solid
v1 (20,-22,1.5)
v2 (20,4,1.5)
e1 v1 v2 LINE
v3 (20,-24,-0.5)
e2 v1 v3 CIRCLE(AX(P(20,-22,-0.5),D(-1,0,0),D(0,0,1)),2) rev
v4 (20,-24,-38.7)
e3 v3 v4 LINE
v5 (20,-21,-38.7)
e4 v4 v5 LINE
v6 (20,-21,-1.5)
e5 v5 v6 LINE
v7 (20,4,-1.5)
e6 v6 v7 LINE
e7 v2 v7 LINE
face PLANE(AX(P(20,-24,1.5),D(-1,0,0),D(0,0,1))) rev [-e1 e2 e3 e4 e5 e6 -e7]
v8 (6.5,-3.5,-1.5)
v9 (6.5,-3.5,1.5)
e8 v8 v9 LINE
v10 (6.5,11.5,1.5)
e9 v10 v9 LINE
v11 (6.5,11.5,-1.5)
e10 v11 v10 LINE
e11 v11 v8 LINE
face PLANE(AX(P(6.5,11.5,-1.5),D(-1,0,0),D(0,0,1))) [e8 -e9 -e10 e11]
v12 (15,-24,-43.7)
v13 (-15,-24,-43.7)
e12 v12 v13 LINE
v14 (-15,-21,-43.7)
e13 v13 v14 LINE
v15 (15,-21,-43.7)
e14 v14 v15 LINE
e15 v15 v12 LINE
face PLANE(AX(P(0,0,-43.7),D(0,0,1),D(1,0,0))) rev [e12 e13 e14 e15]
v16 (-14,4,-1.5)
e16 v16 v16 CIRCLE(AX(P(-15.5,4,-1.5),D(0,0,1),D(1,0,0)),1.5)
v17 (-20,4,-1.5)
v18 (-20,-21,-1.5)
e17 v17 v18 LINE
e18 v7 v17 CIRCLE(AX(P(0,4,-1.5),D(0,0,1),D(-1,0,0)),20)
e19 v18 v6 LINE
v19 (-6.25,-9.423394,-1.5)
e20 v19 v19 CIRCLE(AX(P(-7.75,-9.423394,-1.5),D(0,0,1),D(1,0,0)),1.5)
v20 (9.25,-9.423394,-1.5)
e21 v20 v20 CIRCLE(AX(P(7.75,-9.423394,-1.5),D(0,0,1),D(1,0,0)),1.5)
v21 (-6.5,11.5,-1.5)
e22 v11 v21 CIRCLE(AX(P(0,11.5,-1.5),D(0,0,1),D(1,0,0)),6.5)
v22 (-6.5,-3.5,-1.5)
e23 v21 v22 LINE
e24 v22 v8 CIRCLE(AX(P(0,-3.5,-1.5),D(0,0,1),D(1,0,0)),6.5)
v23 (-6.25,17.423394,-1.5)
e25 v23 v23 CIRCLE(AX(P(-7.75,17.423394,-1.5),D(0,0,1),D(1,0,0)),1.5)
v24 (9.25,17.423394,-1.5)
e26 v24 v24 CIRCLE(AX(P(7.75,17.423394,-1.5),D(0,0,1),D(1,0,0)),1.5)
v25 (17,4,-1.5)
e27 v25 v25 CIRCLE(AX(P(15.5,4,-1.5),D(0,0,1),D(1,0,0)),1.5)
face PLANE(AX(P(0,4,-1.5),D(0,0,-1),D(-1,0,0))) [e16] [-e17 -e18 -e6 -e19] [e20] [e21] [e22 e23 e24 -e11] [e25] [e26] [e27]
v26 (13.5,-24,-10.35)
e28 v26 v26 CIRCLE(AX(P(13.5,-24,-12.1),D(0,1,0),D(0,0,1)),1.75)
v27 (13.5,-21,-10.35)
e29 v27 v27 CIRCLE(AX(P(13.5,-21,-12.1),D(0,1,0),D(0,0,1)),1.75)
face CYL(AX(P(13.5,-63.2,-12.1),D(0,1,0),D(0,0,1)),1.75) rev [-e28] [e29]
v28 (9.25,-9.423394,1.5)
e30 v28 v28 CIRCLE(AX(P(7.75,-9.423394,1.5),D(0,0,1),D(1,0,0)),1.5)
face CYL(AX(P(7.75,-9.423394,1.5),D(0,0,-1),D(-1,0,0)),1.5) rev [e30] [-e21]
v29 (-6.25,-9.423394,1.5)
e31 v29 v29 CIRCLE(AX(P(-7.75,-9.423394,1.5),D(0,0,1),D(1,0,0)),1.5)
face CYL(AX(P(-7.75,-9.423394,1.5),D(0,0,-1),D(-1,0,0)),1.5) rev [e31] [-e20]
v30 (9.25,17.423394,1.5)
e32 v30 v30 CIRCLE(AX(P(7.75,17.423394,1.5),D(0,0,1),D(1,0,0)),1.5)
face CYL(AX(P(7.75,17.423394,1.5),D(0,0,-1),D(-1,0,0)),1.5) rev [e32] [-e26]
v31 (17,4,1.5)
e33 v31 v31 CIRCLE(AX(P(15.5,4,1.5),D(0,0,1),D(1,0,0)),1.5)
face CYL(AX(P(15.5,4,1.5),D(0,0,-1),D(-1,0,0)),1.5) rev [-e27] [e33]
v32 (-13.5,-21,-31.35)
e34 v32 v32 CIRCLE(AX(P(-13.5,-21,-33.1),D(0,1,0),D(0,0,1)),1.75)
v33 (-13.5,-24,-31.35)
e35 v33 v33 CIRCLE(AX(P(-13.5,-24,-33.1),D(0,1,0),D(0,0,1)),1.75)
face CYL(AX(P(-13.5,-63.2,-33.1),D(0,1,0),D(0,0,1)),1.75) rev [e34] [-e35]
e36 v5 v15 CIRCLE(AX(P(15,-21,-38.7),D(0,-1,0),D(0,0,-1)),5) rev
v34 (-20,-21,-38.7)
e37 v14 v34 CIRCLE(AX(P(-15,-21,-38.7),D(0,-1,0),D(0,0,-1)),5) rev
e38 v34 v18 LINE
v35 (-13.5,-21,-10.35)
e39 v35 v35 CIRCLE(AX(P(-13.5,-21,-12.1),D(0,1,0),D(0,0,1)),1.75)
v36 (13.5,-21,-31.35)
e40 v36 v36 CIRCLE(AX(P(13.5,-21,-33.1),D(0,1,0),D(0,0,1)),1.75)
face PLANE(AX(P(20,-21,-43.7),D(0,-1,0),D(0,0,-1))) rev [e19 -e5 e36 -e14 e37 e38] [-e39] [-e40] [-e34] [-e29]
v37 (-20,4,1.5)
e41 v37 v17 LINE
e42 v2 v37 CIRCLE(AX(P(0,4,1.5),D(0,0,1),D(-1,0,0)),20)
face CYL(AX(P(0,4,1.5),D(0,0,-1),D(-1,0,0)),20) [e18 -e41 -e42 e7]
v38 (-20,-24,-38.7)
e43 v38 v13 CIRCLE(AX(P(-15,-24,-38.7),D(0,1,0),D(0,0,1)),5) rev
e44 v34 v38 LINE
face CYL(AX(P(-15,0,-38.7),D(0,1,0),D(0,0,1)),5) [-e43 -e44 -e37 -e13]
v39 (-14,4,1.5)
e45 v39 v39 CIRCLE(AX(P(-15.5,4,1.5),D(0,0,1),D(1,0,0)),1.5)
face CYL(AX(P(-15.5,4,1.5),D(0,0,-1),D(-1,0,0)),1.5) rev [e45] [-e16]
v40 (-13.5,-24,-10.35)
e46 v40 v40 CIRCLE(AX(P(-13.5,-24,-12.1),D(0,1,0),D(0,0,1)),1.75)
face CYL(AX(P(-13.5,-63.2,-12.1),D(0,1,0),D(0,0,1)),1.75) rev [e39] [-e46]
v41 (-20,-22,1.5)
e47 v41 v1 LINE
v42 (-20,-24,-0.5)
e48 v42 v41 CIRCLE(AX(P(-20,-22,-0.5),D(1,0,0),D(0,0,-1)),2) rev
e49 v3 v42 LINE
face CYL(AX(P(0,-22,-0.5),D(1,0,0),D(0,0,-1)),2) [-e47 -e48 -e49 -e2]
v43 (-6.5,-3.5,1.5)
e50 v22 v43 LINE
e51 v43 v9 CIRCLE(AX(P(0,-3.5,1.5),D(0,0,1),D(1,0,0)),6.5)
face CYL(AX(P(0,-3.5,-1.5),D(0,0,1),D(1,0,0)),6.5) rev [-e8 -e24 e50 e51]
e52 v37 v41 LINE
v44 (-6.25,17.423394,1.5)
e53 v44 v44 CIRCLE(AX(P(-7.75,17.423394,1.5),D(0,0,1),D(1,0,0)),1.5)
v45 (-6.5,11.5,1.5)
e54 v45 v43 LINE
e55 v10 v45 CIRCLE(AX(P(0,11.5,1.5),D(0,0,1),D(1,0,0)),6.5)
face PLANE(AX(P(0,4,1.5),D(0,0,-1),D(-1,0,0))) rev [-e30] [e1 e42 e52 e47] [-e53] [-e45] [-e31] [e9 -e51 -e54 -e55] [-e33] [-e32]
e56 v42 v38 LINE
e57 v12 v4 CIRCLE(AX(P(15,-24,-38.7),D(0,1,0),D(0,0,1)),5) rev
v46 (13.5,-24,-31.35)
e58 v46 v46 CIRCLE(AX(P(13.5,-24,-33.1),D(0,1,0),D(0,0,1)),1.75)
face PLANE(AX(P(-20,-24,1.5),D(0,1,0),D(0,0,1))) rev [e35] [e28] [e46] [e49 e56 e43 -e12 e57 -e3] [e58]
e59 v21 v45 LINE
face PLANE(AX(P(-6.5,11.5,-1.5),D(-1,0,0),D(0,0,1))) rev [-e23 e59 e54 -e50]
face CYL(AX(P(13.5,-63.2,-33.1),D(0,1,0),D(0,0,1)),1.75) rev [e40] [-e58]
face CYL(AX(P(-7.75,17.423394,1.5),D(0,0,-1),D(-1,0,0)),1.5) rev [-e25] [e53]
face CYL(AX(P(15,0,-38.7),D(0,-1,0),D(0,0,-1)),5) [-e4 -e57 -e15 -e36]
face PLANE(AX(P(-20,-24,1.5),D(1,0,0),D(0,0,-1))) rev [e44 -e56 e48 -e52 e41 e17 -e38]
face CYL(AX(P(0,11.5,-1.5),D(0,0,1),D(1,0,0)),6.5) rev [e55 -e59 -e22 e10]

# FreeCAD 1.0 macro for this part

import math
import FreeCAD as App
import Part
import Sketcher
from FreeCAD import Vector


def edges_at(feature, points):
    """Names of the edges that pass closest to the given points."""
    edges = feature.Shape.Edges
    near = lambda p: min(range(len(edges)), key=lambda i: edges[i].distToShape(Part.Vertex(*p))[0])
    return sorted({f"Edge{near(p) + 1}" for p in points})

doc = App.newDocument("Part")
body = doc.addObject("PartDesign::Body", "Body")

sketch1 = body.newObject("Sketcher::SketchObject", "Sketch")
sketch1.AttachmentSupport = (doc.getObject("XY_Plane"), [""])
sketch1.MapMode = "FlatFace"
sketch1.addGeometry(Part.LineSegment(Vector(-20, -24, 0), Vector(20, -24, 0)), False)
sketch1.addGeometry(Part.LineSegment(Vector(20, -24, 0), Vector(20, 4, 0)), False)
sketch1.addGeometry(Part.ArcOfCircle(Part.Circle(Vector(0, 4, 0), Vector(0, 0, 1), 20), math.radians(0), math.radians(180)), False)
sketch1.addGeometry(Part.LineSegment(Vector(-20, 4, 0), Vector(-20, -24, 0)), False)
sketch1.addGeometry(Part.Circle(Vector(-7.75, -9.423394, 0), Vector(0, 0, 1), 1.5), False)
sketch1.addGeometry(Part.Circle(Vector(7.75, -9.423394, 0), Vector(0, 0, 1), 1.5), False)
sketch1.addGeometry(Part.Circle(Vector(-15.5, 4, 0), Vector(0, 0, 1), 1.5), False)
sketch1.addGeometry(Part.Circle(Vector(-7.75, 17.423394, 0), Vector(0, 0, 1), 1.5), False)
sketch1.addGeometry(Part.Circle(Vector(15.5, 4, 0), Vector(0, 0, 1), 1.5), False)
sketch1.addGeometry(Part.Circle(Vector(7.75, 17.423394, 0), Vector(0, 0, 1), 1.5), False)
sketch1.addConstraint(Sketcher.Constraint("Coincident", 0, 2, 1, 1))
sketch1.addConstraint(Sketcher.Constraint("Tangent", 1, 2, 2, 1))
sketch1.addConstraint(Sketcher.Constraint("Tangent", 2, 2, 3, 1))
sketch1.addConstraint(Sketcher.Constraint("Coincident", 3, 2, 0, 1))
sketch1.addConstraint(Sketcher.Constraint("Horizontal", 0))
sketch1.addConstraint(Sketcher.Constraint("Vertical", 1))
sketch1.addConstraint(Sketcher.Constraint("Vertical", 3))
sketch1.addConstraint(Sketcher.Constraint("Equal", 4, 5))
sketch1.addConstraint(Sketcher.Constraint("Equal", 5, 6))
sketch1.addConstraint(Sketcher.Constraint("Equal", 6, 7))
sketch1.addConstraint(Sketcher.Constraint("Equal", 7, 8))
sketch1.addConstraint(Sketcher.Constraint("Equal", 8, 9))
sketch1.addConstraint(Sketcher.Constraint("Symmetric", 4, 3, 5, 3, -2))
sketch1.addConstraint(Sketcher.Constraint("Symmetric", 6, 3, 8, 3, -2))
sketch1.addConstraint(Sketcher.Constraint("Symmetric", 7, 3, 9, 3, -2))
sketch1.addConstraint(Sketcher.Constraint("PointOnObject", 2, 3, -2))
sketch1.addConstraint(Sketcher.Constraint("Horizontal", 2, 3, 6, 3))
sketch1.addConstraint(Sketcher.Constraint("Vertical", 4, 3, 7, 3))
sketch1.addConstraint(Sketcher.Constraint("Diameter", 4, 3.0))
sketch1.addConstraint(Sketcher.Constraint("Radius", 2, 20.0))
sketch1.addConstraint(Sketcher.Constraint("DistanceY", 1, 1, 1, 2, 28.0))
sketch1.addConstraint(Sketcher.Constraint("DistanceY", -1, 1, 2, 3, 4.0))
sketch1.addConstraint(Sketcher.Constraint("DistanceX", 6, 3, 8, 3, 31.0))
sketch1.addConstraint(Sketcher.Constraint("DistanceX", 4, 3, 5, 3, 15.5))
sketch1.addConstraint(Sketcher.Constraint("DistanceY", 4, 3, -1, 1, 9.423394))
sketch1.addConstraint(Sketcher.Constraint("DistanceY", -1, 1, 7, 3, 17.423394))
pad1 = body.newObject("PartDesign::Pad", "Pad")
pad1.Profile = sketch1
pad1.Length = 3
pad1.Midplane = True

sketch2 = body.newObject("Sketcher::SketchObject", "Sketch001")
sketch2.AttachmentSupport = (doc.getObject("XY_Plane"), [""])
sketch2.MapMode = "FlatFace"
sketch2.AttachmentOffset = App.Placement(Vector(0, 0, 1.5), App.Rotation())
sketch2.addGeometry(Part.LineSegment(Vector(6.5, -3.5, 0), Vector(6.5, 11.5, 0)), False)
sketch2.addGeometry(Part.ArcOfCircle(Part.Circle(Vector(0, 11.5, 0), Vector(0, 0, 1), 6.5), math.radians(0), math.radians(180)), False)
sketch2.addGeometry(Part.LineSegment(Vector(-6.5, 11.5, 0), Vector(-6.5, -3.5, 0)), False)
sketch2.addGeometry(Part.ArcOfCircle(Part.Circle(Vector(0, -3.5, 0), Vector(0, 0, 1), 6.5), math.radians(180), math.radians(360)), False)
sketch2.addConstraint(Sketcher.Constraint("Tangent", 0, 2, 1, 1))
sketch2.addConstraint(Sketcher.Constraint("Tangent", 1, 2, 2, 1))
sketch2.addConstraint(Sketcher.Constraint("Tangent", 2, 2, 3, 1))
sketch2.addConstraint(Sketcher.Constraint("Tangent", 3, 2, 0, 1))
sketch2.addConstraint(Sketcher.Constraint("Vertical", 0))
sketch2.addConstraint(Sketcher.Constraint("Vertical", 2))
sketch2.addConstraint(Sketcher.Constraint("PointOnObject", 1, 3, -2))
sketch2.addConstraint(Sketcher.Constraint("Radius", 1, 6.5))
sketch2.addConstraint(Sketcher.Constraint("DistanceY", 0, 1, 0, 2, 15.0))
sketch2.addConstraint(Sketcher.Constraint("DistanceY", -1, 1, 1, 3, 11.5))
pocket1 = body.newObject("PartDesign::Pocket", "Pocket")
pocket1.Profile = sketch2
pocket1.Length = 3

sketch3 = body.newObject("Sketcher::SketchObject", "Sketch002")
sketch3.AttachmentSupport = (doc.getObject("XY_Plane"), [""])
sketch3.MapMode = "FlatFace"
sketch3.AttachmentOffset = App.Placement(Vector(0, 0, -1.5), App.Rotation())
sketch3.addGeometry(Part.LineSegment(Vector(20, -21, 0), Vector(20, -24, 0)), False)
sketch3.addGeometry(Part.LineSegment(Vector(20, -24, 0), Vector(-20, -24, 0)), False)
sketch3.addGeometry(Part.LineSegment(Vector(-20, -24, 0), Vector(-20, -21, 0)), False)
sketch3.addGeometry(Part.LineSegment(Vector(-20, -21, 0), Vector(20, -21, 0)), False)
sketch3.addConstraint(Sketcher.Constraint("Coincident", 0, 2, 1, 1))
sketch3.addConstraint(Sketcher.Constraint("Coincident", 1, 2, 2, 1))
sketch3.addConstraint(Sketcher.Constraint("Coincident", 2, 2, 3, 1))
sketch3.addConstraint(Sketcher.Constraint("Coincident", 3, 2, 0, 1))
sketch3.addConstraint(Sketcher.Constraint("Vertical", 0))
sketch3.addConstraint(Sketcher.Constraint("Horizontal", 1))
sketch3.addConstraint(Sketcher.Constraint("Vertical", 2))
sketch3.addConstraint(Sketcher.Constraint("Horizontal", 3))
sketch3.addConstraint(Sketcher.Constraint("DistanceX", 1, 2, 1, 1, 40.0))
sketch3.addConstraint(Sketcher.Constraint("DistanceY", 0, 2, 0, 1, 3.0))
sketch3.addConstraint(Sketcher.Constraint("DistanceX", -1, 1, 0, 2, 20.0))
sketch3.addConstraint(Sketcher.Constraint("DistanceY", 0, 2, -1, 1, 24.0))
pad2 = body.newObject("PartDesign::Pad", "Pad001")
pad2.Profile = sketch3
pad2.Length = 42.2
pad2.Reversed = True

sketch4 = body.newObject("Sketcher::SketchObject", "Sketch003")
sketch4.AttachmentSupport = (doc.getObject("XZ_Plane"), [""])
sketch4.MapMode = "FlatFace"
sketch4.AttachmentOffset = App.Placement(Vector(0, 0, 21), App.Rotation())
sketch4.addGeometry(Part.Circle(Vector(-13.5, -33.1, 0), Vector(0, 0, 1), 1.75), False)
sketch4.addGeometry(Part.Circle(Vector(13.5, -33.1, 0), Vector(0, 0, 1), 1.75), False)
sketch4.addGeometry(Part.Circle(Vector(13.5, -12.1, 0), Vector(0, 0, 1), 1.75), False)
sketch4.addGeometry(Part.Circle(Vector(-13.5, -12.1, 0), Vector(0, 0, 1), 1.75), False)
sketch4.addConstraint(Sketcher.Constraint("Equal", 0, 1))
sketch4.addConstraint(Sketcher.Constraint("Equal", 1, 2))
sketch4.addConstraint(Sketcher.Constraint("Equal", 2, 3))
sketch4.addConstraint(Sketcher.Constraint("Symmetric", 0, 3, 1, 3, -2))
sketch4.addConstraint(Sketcher.Constraint("Symmetric", 2, 3, 3, 3, -2))
sketch4.addConstraint(Sketcher.Constraint("Vertical", 1, 3, 2, 3))
sketch4.addConstraint(Sketcher.Constraint("Diameter", 0, 3.5))
sketch4.addConstraint(Sketcher.Constraint("DistanceX", 0, 3, 1, 3, 27.0))
sketch4.addConstraint(Sketcher.Constraint("DistanceY", 1, 3, 2, 3, 21.0))
sketch4.addConstraint(Sketcher.Constraint("DistanceY", 0, 3, -1, 1, 33.1))
pocket2 = body.newObject("PartDesign::Pocket", "Pocket001")
pocket2.Profile = sketch4
pocket2.Length = 42.2
pocket2.Reversed = True
doc.recompute()

fillet = body.newObject("PartDesign::Fillet", "Fillet")
fillet.Base = (pocket2, edges_at(pocket2, [(0, -24, 1.5)]))
fillet.Radius = 2
doc.recompute()

fillet2 = body.newObject("PartDesign::Fillet", "Fillet001")
fillet2.Base = (fillet, edges_at(fillet, [(20, -22.5, -43.7), (-20, -22.5, -43.7)]))
fillet2.Radius = 5

doc.recompute()
